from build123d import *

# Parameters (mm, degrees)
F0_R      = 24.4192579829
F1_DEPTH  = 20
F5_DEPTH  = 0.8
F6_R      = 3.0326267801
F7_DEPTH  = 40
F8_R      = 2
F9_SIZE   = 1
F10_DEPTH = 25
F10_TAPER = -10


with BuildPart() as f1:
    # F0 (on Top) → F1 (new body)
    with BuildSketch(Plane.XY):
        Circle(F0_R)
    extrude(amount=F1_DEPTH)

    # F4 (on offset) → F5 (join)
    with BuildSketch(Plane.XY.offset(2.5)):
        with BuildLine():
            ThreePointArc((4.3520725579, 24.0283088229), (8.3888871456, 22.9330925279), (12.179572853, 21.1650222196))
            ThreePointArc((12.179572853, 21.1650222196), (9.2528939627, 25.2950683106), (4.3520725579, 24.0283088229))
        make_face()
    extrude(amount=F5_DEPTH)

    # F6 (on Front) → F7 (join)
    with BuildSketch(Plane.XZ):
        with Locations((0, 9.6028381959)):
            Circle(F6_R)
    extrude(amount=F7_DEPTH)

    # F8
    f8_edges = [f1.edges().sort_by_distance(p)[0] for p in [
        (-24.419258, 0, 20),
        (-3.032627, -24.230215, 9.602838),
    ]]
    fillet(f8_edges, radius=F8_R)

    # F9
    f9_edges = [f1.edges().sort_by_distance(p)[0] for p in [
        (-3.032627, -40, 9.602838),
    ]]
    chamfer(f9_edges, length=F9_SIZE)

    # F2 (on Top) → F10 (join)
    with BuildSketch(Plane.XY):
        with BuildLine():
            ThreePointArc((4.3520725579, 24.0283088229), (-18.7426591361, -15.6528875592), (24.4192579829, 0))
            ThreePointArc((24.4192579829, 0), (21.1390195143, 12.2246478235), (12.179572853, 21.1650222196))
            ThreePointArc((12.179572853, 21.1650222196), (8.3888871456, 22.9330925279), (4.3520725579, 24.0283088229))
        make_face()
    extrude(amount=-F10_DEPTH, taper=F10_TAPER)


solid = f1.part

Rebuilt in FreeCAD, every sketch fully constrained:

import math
import FreeCAD as App
import Part
import Sketcher
from FreeCAD import Vector


def edges_at(feature, points):
    """Names of the edges that pass closest to the given points."""
    edges = feature.Shape.Edges
    near = lambda p: min(range(len(edges)), key=lambda i: edges[i].distToShape(Part.Vertex(*p))[0])
    return sorted({f"Edge{near(p) + 1}" for p in points})

doc = App.newDocument("Part")
body = doc.addObject("PartDesign::Body", "Body")

# Sketch on XY plane
sketch1 = body.newObject("Sketcher::SketchObject", "Sketch")
sketch1.AttachmentSupport = (doc.getObject("XY_Plane"), [""])
sketch1.MapMode = "FlatFace"
sketch1.addGeometry(Part.Circle(Vector(0, 0, 0), Vector(0, 0, 1), 24), False)
sketch1.addConstraint([
    Sketcher.Constraint("Coincident", 0, 3, -1, 1),
    Sketcher.Constraint("Diameter", 0, 48.838516),
])
pad1 = body.newObject("PartDesign::Pad", "Pad")
pad1.Profile = sketch1
pad1.Length = 20

# Sketch on XY plane
sketch2 = body.newObject("Sketcher::SketchObject", "Sketch001")
sketch2.AttachmentSupport = (doc.getObject("XY_Plane"), [""])
sketch2.MapMode = "FlatFace"
sketch2.AttachmentOffset = App.Placement(Vector(0, 0, 2.5), App.Rotation())
sketch2.addGeometry([
    Part.ArcOfCircle(Part.Circle(Vector(0, 0, 0), Vector(0, 0, 1), 24.4), math.radians(60.08), math.radians(79.73)),
    Part.ArcOfCircle(Part.Circle(Vector(7.7, 21.1, 0), Vector(0, 0, 1), 4.5), math.radians(1), math.radians(139)),
], False)
sketch2.addConstraint([
    Sketcher.Constraint("Coincident", 0, 1, 1, 1),
    Sketcher.Constraint("Coincident", 1, 2, 0, 2),
    Sketcher.Constraint("Coincident", 0, 3, -1, 1),
    Sketcher.Constraint("Radius", 1, 4.458808),
    Sketcher.Constraint("Radius", 0, 24.419258),
    Sketcher.Constraint("DistanceX", 1, 2, 0, 1, 7.8275),
    Sketcher.Constraint("DistanceY", -1, 1, 1, 2, 24.028309),
])
pad2 = body.newObject("PartDesign::Pad", "Pad001")
pad2.Profile = sketch2
pad2.Length = 0.8

# Sketch on XZ plane
sketch3 = body.newObject("Sketcher::SketchObject", "Sketch002")
sketch3.AttachmentSupport = (doc.getObject("XZ_Plane"), [""])
sketch3.MapMode = "FlatFace"
sketch3.addGeometry(Part.Circle(Vector(0, 9.6, 0), Vector(0, 0, 1), 3), False)
sketch3.addConstraint([
    Sketcher.Constraint("PointOnObject", 0, 3, -2),
    Sketcher.Constraint("Diameter", 0, 6.065254),
    Sketcher.Constraint("DistanceY", -1, 1, 0, 3, 9.602838),
])
pad3 = body.newObject("PartDesign::Pad", "Pad002")
pad3.Profile = sketch3
pad3.Length = 40
doc.recompute()

fillet = body.newObject("PartDesign::Fillet", "Fillet")
fillet.Base = (pad3, edges_at(pad3, [(-24.419, 0, 20), (-3.033, -24.23, 9.603)]))
fillet.Radius = 2
doc.recompute()

chamfer = body.newObject("PartDesign::Chamfer", "Chamfer")
chamfer.Base = (fillet, edges_at(fillet, [(-3.033, -40, 9.603)]))
chamfer.Size = 1

# Sketch on XY plane
sketch4 = body.newObject("Sketcher::SketchObject", "Sketch003")
sketch4.AttachmentSupport = (doc.getObject("XY_Plane"), [""])
sketch4.MapMode = "FlatFace"
sketch4.addGeometry([
    Part.ArcOfCircle(Part.Circle(Vector(0, 0, 0), Vector(0, 0, 1), 24), math.radians(80), math.radians(360)),
    Part.ArcOfCircle(Part.Circle(Vector(0, 0, 0), Vector(0, 0, 1), 24), math.radians(0), math.radians(60)),
    Part.ArcOfCircle(Part.Circle(Vector(0, 0, 0), Vector(0, 0, 1), 24), math.radians(60.08), math.radians(79.73)),
], False)
sketch4.addConstraint([
    Sketcher.Constraint("Tangent", 0, 2, 1, 1),
    Sketcher.Constraint("Tangent", 1, 2, 2, 1),
    Sketcher.Constraint("Tangent", 2, 2, 0, 1),
    Sketcher.Constraint("Coincident", 0, 3, -1, 1),
    Sketcher.Constraint("PointOnObject", 0, 2, -1),
    Sketcher.Constraint("Radius", 0, 24.419258),
    Sketcher.Constraint("DistanceX", 2, 2, 1, 2, 7.8275),
    Sketcher.Constraint("DistanceY", -1, 1, 2, 2, 24.028309),
])
pad4 = body.newObject("PartDesign::Pad", "Pad003")
pad4.Profile = sketch4
pad4.Length = 25
pad4.Reversed = True
pad4.TaperAngle = 10

doc.recompute()
